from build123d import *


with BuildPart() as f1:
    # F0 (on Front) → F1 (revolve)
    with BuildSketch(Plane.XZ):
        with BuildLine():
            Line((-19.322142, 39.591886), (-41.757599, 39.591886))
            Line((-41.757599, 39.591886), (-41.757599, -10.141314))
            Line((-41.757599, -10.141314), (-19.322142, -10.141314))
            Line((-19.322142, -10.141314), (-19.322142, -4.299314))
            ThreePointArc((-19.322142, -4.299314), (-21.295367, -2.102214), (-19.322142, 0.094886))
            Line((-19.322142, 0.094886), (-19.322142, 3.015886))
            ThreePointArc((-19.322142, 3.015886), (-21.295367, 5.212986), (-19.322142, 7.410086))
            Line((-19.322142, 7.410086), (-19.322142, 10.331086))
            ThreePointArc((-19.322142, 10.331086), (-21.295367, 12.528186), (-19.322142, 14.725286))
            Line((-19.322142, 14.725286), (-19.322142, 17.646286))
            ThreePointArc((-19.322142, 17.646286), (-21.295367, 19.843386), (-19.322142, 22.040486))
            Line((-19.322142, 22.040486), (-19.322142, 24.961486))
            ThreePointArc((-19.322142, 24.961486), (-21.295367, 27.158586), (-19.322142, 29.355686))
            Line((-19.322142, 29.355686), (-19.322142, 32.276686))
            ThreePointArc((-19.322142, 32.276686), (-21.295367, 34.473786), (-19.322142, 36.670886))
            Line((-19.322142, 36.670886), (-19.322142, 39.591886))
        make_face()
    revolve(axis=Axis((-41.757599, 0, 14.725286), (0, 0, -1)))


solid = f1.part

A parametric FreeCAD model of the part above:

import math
import FreeCAD as App
import Part
import Sketcher
from FreeCAD import Vector
Q = App.Units.Quantity

doc = App.newDocument("Part")
body = doc.addObject("PartDesign::Body", "Body")

# Sketch on XZ plane
sketch1 = body.newObject("Sketcher::SketchObject", "Sketch")
sketch1.AttachmentSupport = (doc.getObject("XZ_Plane"), [""])
sketch1.MapMode = "FlatFace"
sketch1.addGeometry([
    Part.LineSegment(Vector(-19.3, 39.6, 0), Vector(-41.8, 39.6, 0)),  # 0
    Part.LineSegment(Vector(-41.8, 39.6, 0), Vector(-41.8, -10.1, 0)),  # 1
    Part.LineSegment(Vector(-41.8, -10.1, 0), Vector(-19.3, -10.1, 0)),  # 2
    Part.LineSegment(Vector(-19.3, -10.1, 0), Vector(-19.3, -4.3, 0)),  # 3
    Part.ArcOfCircle(Part.Circle(Vector(-19.1, -2.1, 0), Vector(0, 0, 1), 2.2), math.radians(96), math.radians(264)),  # 4
    Part.LineSegment(Vector(-19.3, 0.1, 0), Vector(-19.3, 3, 0)),  # 5
    Part.ArcOfCircle(Part.Circle(Vector(-19.1, 5.2, 0), Vector(0, 0, 1), 2.2), math.radians(96), math.radians(264)),  # 6
    Part.LineSegment(Vector(-19.3, 7.4, 0), Vector(-19.3, 10.3, 0)),  # 7
    Part.ArcOfCircle(Part.Circle(Vector(-19.1, 12.5, 0), Vector(0, 0, 1), 2.2), math.radians(96), math.radians(264)),  # 8
    Part.LineSegment(Vector(-19.3, 14.7, 0), Vector(-19.3, 17.6, 0)),  # 9
    Part.ArcOfCircle(Part.Circle(Vector(-19.1, 19.8, 0), Vector(0, 0, 1), 2.2), math.radians(96), math.radians(264)),  # 10
    Part.LineSegment(Vector(-19.3, 22, 0), Vector(-19.3, 25, 0)),  # 11
    Part.ArcOfCircle(Part.Circle(Vector(-19.1, 27.2, 0), Vector(0, 0, 1), 2.2), math.radians(96), math.radians(264)),  # 12
    Part.LineSegment(Vector(-19.3, 29.4, 0), Vector(-19.3, 32.3, 0)),  # 13
    Part.ArcOfCircle(Part.Circle(Vector(-19.1, 34.5, 0), Vector(0, 0, 1), 2.2), math.radians(96), math.radians(264)),  # 14
    Part.LineSegment(Vector(-19.3, 36.7, 0), Vector(-19.3, 39.6, 0)),  # 15
], False)
sketch1.addGeometry(Part.LineSegment(Vector(-41.8, 39.6, 0), Vector(-41.8, -10.1, 0)), True)  # axis
sketch1.addConstraint([
    Sketcher.Constraint("Coincident", 0, 2, 1, 1),
    Sketcher.Constraint("Coincident", 1, 2, 2, 1),
    Sketcher.Constraint("Coincident", 2, 2, 3, 1),
    Sketcher.Constraint("Coincident", 3, 2, 4, 2),
    Sketcher.Constraint("Coincident", 4, 1, 5, 1),
    Sketcher.Constraint("Coincident", 5, 2, 6, 2),
    Sketcher.Constraint("Coincident", 6, 1, 7, 1),
    Sketcher.Constraint("Coincident", 7, 2, 8, 2),
    Sketcher.Constraint("Coincident", 8, 1, 9, 1),
    Sketcher.Constraint("Coincident", 9, 2, 10, 2),
    Sketcher.Constraint("Coincident", 10, 1, 11, 1),
    Sketcher.Constraint("Coincident", 11, 2, 12, 2),
    Sketcher.Constraint("Coincident", 12, 1, 13, 1),
    Sketcher.Constraint("Coincident", 13, 2, 14, 2),
    Sketcher.Constraint("Coincident", 14, 1, 15, 1),
    Sketcher.Constraint("Coincident", 15, 2, 0, 1),
    Sketcher.Constraint("Horizontal", 0),
    Sketcher.Constraint("Vertical", 1),
    Sketcher.Constraint("Horizontal", 2),
    Sketcher.Constraint("Vertical", 3),
    Sketcher.Constraint("Vertical", 5),
    Sketcher.Constraint("Vertical", 7),
    Sketcher.Constraint("Vertical", 9),
    Sketcher.Constraint("Vertical", 11),
    Sketcher.Constraint("Vertical", 13),
    Sketcher.Constraint("Vertical", 15),
    Sketcher.Constraint("Vertical", 16),
    Sketcher.Constraint("Coincident", 16, 1, 0, 2),
    Sketcher.Constraint("Equal", 4, 6),
    Sketcher.Constraint("Equal", 6, 8),
    Sketcher.Constraint("Equal", 8, 10),
    Sketcher.Constraint("Equal", 10, 12),
    Sketcher.Constraint("Equal", 12, 14),
    Sketcher.Constraint("Horizontal", 2, 2, 16, 2),
    Sketcher.Constraint("Vertical", 4, 3, 6, 3),
    Sketcher.Constraint("Vertical", 6, 3, 8, 3),
    Sketcher.Constraint("Vertical", 8, 3, 10, 3),
    Sketcher.Constraint("Vertical", 10, 3, 12, 3),
    Sketcher.Constraint("Vertical", 12, 3, 14, 3),
    Sketcher.Constraint("Vertical", 3, 2, 4, 1),
    Sketcher.Constraint("Vertical", 5, 2, 6, 1),
    Sketcher.Constraint("Vertical", 7, 2, 8, 1),
    Sketcher.Constraint("Vertical", 9, 2, 10, 1),
    Sketcher.Constraint("Vertical", 11, 2, 12, 1),
    Sketcher.Constraint("Vertical", 13, 2, 14, 1),
    Sketcher.Constraint("Equal", 5, 7),
    Sketcher.Constraint("Equal", 7, 9),
    Sketcher.Constraint("Equal", 9, 11),
    Sketcher.Constraint("Equal", 11, 13),
    Sketcher.Constraint("Equal", 13, 15),
    Sketcher.Constraint("Radius", 4, Q("0.087 in")),
    Sketcher.Constraint("DistanceY", 3, 1, 3, 2, Q("0.23 in")),
    Sketcher.Constraint("DistanceY", 1, 2, 1, 1, Q("1.958 in")),
    Sketcher.Constraint("DistanceY", 5, 1, 5, 2, Q("0.115 in")),
    Sketcher.Constraint("DistanceX", 0, 2, -1, 1, Q("1.644 in")),
    Sketcher.Constraint("DistanceX", 0, 2, 0, 1, 22.435457),
    Sketcher.Constraint("DistanceY", 4, 3, -1, 1, 2.102214),
])
revolution = body.newObject("PartDesign::Revolution", "Revolution")
revolution.Profile = sketch1
revolution.ReferenceAxis = (sketch1, ["Axis0"])
revolution.Angle = 360

doc.recompute()
